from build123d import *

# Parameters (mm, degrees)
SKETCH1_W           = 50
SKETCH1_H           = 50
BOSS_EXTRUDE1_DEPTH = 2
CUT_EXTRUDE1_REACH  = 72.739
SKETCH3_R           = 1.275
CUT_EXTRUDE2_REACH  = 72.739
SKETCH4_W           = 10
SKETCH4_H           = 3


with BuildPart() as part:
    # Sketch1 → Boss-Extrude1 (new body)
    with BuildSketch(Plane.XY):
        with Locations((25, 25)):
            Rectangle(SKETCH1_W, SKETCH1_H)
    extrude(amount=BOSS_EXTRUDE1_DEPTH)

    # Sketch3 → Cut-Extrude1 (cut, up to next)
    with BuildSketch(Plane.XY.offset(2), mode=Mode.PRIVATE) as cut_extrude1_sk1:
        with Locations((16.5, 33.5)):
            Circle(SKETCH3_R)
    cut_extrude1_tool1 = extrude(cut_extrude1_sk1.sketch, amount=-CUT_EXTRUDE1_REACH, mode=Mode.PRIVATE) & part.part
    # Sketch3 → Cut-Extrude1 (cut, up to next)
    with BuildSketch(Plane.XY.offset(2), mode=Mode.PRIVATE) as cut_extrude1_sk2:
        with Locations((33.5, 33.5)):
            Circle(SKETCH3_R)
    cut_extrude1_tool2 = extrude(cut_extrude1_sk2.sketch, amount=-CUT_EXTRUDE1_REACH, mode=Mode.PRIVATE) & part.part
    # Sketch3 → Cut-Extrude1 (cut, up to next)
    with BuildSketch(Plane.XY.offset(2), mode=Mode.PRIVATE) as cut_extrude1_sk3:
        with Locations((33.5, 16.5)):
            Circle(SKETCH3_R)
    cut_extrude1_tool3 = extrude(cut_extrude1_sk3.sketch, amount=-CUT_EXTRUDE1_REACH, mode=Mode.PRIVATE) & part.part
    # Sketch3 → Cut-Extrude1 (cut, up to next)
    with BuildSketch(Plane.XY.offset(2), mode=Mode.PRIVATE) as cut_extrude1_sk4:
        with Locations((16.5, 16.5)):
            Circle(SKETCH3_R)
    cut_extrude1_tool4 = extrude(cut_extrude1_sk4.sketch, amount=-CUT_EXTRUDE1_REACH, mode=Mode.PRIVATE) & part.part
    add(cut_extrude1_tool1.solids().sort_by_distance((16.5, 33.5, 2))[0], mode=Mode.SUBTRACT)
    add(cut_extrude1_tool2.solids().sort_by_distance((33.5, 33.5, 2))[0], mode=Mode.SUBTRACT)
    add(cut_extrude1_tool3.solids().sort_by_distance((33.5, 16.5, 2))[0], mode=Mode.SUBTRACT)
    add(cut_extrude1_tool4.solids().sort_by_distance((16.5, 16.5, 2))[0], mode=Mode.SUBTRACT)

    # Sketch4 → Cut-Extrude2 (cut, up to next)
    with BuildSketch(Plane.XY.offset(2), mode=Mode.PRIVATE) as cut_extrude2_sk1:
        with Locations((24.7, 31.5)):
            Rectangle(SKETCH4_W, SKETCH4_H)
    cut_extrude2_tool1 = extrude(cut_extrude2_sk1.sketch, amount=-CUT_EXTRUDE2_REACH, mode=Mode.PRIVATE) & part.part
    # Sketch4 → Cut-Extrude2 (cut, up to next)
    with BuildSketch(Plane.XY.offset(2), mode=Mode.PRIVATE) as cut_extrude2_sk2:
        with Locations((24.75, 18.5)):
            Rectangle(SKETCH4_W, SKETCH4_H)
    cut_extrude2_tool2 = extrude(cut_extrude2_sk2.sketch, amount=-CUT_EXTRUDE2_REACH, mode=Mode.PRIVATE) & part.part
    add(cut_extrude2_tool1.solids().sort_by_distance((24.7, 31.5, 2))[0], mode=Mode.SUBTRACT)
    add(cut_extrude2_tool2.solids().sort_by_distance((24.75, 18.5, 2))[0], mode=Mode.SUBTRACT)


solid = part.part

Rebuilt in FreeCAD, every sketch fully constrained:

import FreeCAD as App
import Part
import Sketcher
Q = App.Units.Quantity

doc = App.newDocument("Part")
body = doc.addObject("PartDesign::Body", "Body")

# Sketch on XY plane
sketch1 = body.newObject("Sketcher::SketchObject", "Sketch")
sketch1.AttachmentSupport = (doc.getObject("XY_Plane"), [""])
sketch1.MapMode = "FlatFace"
sketch1.addGeometry([
    Part.LineSegment(App.Vector(0, 50, 0), App.Vector(0, 0, 0)),
    Part.LineSegment(App.Vector(0, 0, 0), App.Vector(50, 0, 0)),
    Part.LineSegment(App.Vector(50, 0, 0), App.Vector(50, 50, 0)),
    Part.LineSegment(App.Vector(50, 50, 0), App.Vector(0, 50, 0)),
], False)
sketch1.addConstraint([
    Sketcher.Constraint("Coincident", 0, 2, 1, 1),
    Sketcher.Constraint("Coincident", 1, 2, 2, 1),
    Sketcher.Constraint("Coincident", 2, 2, 3, 1),
    Sketcher.Constraint("Coincident", 3, 2, 0, 1),
    Sketcher.Constraint("Vertical", 0),
    Sketcher.Constraint("Horizontal", 1),
    Sketcher.Constraint("Vertical", 2),
    Sketcher.Constraint("Horizontal", 3),
    Sketcher.Constraint("Coincident", 0, 2, -1, 1),
    Sketcher.Constraint("Equal", 3, 0),
    Sketcher.Constraint("DistanceX", 1, 1, 1, 2, Q("50 mm")),
])
pad1 = body.newObject("PartDesign::Pad", "Pad")
pad1.Profile = sketch1
pad1.Length = 2

# Sketch on XY plane
sketch2 = body.newObject("Sketcher::SketchObject", "Sketch001")
sketch2.AttachmentSupport = (doc.getObject("XY_Plane"), [""])
sketch2.MapMode = "FlatFace"
sketch2.AttachmentOffset = App.Placement(App.Vector(0, 0, 2), App.Rotation())
sketch2.addGeometry(Part.Circle(App.Vector(16.5, 33.5, 0), App.Vector(0, 0, 1), 1.275), False)
sketch2.addConstraint([
    Sketcher.Constraint("Diameter", 0, Q("2.55 mm")),
    Sketcher.Constraint("DistanceX", -1, 1, 0, 3, Q("16.5 mm")),
    Sketcher.Constraint("DistanceY", -1, 1, 0, 3, Q("33.5 mm")),
])
pocket1 = body.newObject("PartDesign::Pocket", "Pocket")
pocket1.Profile = sketch2
pocket1.Type = "UpToFirst"

# Sketch on XY plane
sketch3 = body.newObject("Sketcher::SketchObject", "Sketch002")
sketch3.AttachmentSupport = (doc.getObject("XY_Plane"), [""])
sketch3.MapMode = "FlatFace"
sketch3.AttachmentOffset = App.Placement(App.Vector(0, 0, 2), App.Rotation())
sketch3.addGeometry(Part.Circle(App.Vector(33.5, 33.5, 0), App.Vector(0, 0, 1), 1.275), False)
sketch3.addConstraint([
    Sketcher.Constraint("Diameter", 0, Q("2.55 mm")),
    Sketcher.Constraint("DistanceX", -1, 1, 0, 3, Q("33.5 mm")),
    Sketcher.Constraint("DistanceY", -1, 1, 0, 3, Q("33.5 mm")),
])
pocket2 = body.newObject("PartDesign::Pocket", "Pocket001")
pocket2.Profile = sketch3
pocket2.Type = "UpToFirst"

# Sketch on XY plane
sketch4 = body.newObject("Sketcher::SketchObject", "Sketch003")
sketch4.AttachmentSupport = (doc.getObject("XY_Plane"), [""])
sketch4.MapMode = "FlatFace"
sketch4.AttachmentOffset = App.Placement(App.Vector(0, 0, 2), App.Rotation())
sketch4.addGeometry(Part.Circle(App.Vector(33.5, 16.5, 0), App.Vector(0, 0, 1), 1.275), False)
sketch4.addConstraint([
    Sketcher.Constraint("Diameter", 0, Q("2.55 mm")),
    Sketcher.Constraint("DistanceX", -1, 1, 0, 3, Q("33.5 mm")),
    Sketcher.Constraint("DistanceY", -1, 1, 0, 3, Q("16.5 mm")),
])
pocket3 = body.newObject("PartDesign::Pocket", "Pocket002")
pocket3.Profile = sketch4
pocket3.Type = "UpToFirst"

# Sketch on XY plane
sketch5 = body.newObject("Sketcher::SketchObject", "Sketch004")
sketch5.AttachmentSupport = (doc.getObject("XY_Plane"), [""])
sketch5.MapMode = "FlatFace"
sketch5.AttachmentOffset = App.Placement(App.Vector(0, 0, 2), App.Rotation())
sketch5.addGeometry(Part.Circle(App.Vector(16.5, 16.5, 0), App.Vector(0, 0, 1), 1.275), False)
sketch5.addConstraint([
    Sketcher.Constraint("Diameter", 0, Q("2.55 mm")),
    Sketcher.Constraint("DistanceX", -1, 1, 0, 3, Q("16.5 mm")),
    Sketcher.Constraint("DistanceY", -1, 1, 0, 3, Q("16.5 mm")),
])
pocket4 = body.newObject("PartDesign::Pocket", "Pocket003")
pocket4.Profile = sketch5
pocket4.Type = "UpToFirst"

# Sketch on XY plane
sketch6 = body.newObject("Sketcher::SketchObject", "Sketch005")
sketch6.AttachmentSupport = (doc.getObject("XY_Plane"), [""])
sketch6.MapMode = "FlatFace"
sketch6.AttachmentOffset = App.Placement(App.Vector(0, 0, 2), App.Rotation())
sketch6.addGeometry([
    Part.LineSegment(App.Vector(19.7, 33, 0), App.Vector(19.7, 30, 0)),
    Part.LineSegment(App.Vector(19.7, 30, 0), App.Vector(29.7, 30, 0)),
    Part.LineSegment(App.Vector(29.7, 30, 0), App.Vector(29.7, 33, 0)),
    Part.LineSegment(App.Vector(29.7, 33, 0), App.Vector(19.7, 33, 0)),
], False)
sketch6.addConstraint([
    Sketcher.Constraint("Coincident", 0, 2, 1, 1),
    Sketcher.Constraint("Coincident", 1, 2, 2, 1),
    Sketcher.Constraint("Coincident", 2, 2, 3, 1),
    Sketcher.Constraint("Coincident", 3, 2, 0, 1),
    Sketcher.Constraint("Vertical", 0),
    Sketcher.Constraint("Horizontal", 1),
    Sketcher.Constraint("Vertical", 2),
    Sketcher.Constraint("Horizontal", 3),
    Sketcher.Constraint("DistanceX", 1, 1, 1, 2, Q("10 mm")),
    Sketcher.Constraint("DistanceY", 0, 2, 0, 1, Q("3 mm")),
    Sketcher.Constraint("DistanceY", -1, 1, 0, 2, Q("30 mm")),
    Sketcher.Constraint("DistanceX", -1, 1, 0, 2, Q("19.7 mm")),
])
pocket5 = body.newObject("PartDesign::Pocket", "Pocket004")
pocket5.Profile = sketch6
pocket5.Type = "UpToFirst"

# Sketch on XY plane
sketch7 = body.newObject("Sketcher::SketchObject", "Sketch006")
sketch7.AttachmentSupport = (doc.getObject("XY_Plane"), [""])
sketch7.MapMode = "FlatFace"
sketch7.AttachmentOffset = App.Placement(App.Vector(0, 0, 2), App.Rotation())
sketch7.addGeometry([
    Part.LineSegment(App.Vector(19.75, 20, 0), App.Vector(19.75, 17, 0)),
    Part.LineSegment(App.Vector(19.75, 17, 0), App.Vector(29.75, 17, 0)),
    Part.LineSegment(App.Vector(29.75, 17, 0), App.Vector(29.75, 20, 0)),
    Part.LineSegment(App.Vector(29.75, 20, 0), App.Vector(19.75, 20, 0)),
], False)
sketch7.addConstraint([
    Sketcher.Constraint("Coincident", 0, 2, 1, 1),
    Sketcher.Constraint("Coincident", 1, 2, 2, 1),
    Sketcher.Constraint("Coincident", 2, 2, 3, 1),
    Sketcher.Constraint("Coincident", 3, 2, 0, 1),
    Sketcher.Constraint("Vertical", 0),
    Sketcher.Constraint("Horizontal", 1),
    Sketcher.Constraint("Vertical", 2),
    Sketcher.Constraint("Horizontal", 3),
    Sketcher.Constraint("DistanceX", 1, 1, 1, 2, Q("10 mm")),
    Sketcher.Constraint("DistanceY", 0, 2, 0, 1, Q("3 mm")),
    Sketcher.Constraint("DistanceY", -1, 1, 0, 2, Q("17 mm")),
    Sketcher.Constraint("DistanceX", -1, 1, 0, 2, Q("19.75 mm")),
])
pocket6 = body.newObject("PartDesign::Pocket", "Pocket005")
pocket6.Profile = sketch7
pocket6.Type = "UpToFirst"

doc.recompute()
